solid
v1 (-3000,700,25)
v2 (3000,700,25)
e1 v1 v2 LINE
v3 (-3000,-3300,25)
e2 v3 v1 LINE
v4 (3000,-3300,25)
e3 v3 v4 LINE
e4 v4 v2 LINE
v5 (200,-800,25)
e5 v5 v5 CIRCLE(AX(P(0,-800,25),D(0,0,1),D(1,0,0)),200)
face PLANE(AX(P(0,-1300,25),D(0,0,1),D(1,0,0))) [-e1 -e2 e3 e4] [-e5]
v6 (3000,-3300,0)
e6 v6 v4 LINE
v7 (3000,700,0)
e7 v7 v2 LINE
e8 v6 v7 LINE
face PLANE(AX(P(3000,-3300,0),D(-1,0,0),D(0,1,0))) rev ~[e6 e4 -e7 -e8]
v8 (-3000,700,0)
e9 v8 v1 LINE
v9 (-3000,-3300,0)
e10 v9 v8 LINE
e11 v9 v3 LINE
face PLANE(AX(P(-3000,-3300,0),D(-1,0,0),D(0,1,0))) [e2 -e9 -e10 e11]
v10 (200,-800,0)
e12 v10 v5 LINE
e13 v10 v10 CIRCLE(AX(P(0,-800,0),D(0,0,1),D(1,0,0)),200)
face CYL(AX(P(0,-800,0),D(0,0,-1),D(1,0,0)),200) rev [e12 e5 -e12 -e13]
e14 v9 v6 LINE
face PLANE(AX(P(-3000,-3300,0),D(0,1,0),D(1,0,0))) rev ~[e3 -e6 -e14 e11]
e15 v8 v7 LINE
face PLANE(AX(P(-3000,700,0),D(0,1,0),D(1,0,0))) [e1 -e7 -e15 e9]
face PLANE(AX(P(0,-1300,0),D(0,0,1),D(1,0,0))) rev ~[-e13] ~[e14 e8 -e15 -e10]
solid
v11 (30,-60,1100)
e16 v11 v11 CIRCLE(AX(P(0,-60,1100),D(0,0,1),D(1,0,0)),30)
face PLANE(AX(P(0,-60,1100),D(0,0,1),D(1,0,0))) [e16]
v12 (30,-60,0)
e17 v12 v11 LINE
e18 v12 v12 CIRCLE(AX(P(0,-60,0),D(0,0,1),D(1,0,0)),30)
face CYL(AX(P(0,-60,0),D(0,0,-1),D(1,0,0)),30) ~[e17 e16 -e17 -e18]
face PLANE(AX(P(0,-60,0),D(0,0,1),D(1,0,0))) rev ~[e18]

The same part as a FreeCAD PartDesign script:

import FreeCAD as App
import Part
import Sketcher


def add_polygon(sketch, points):
    """Adds a closed chain of lines whose ends are joined by coincident constraints."""
    first, n = sketch.GeometryCount, len(points)
    for a, b in zip(points, points[1:] + points[:1]):
        sketch.addGeometry(Part.LineSegment(App.Vector(*a, 0), App.Vector(*b, 0)), False)
    for i in range(n):
        sketch.addConstraint(Sketcher.Constraint("Coincident", first + i, 2, first + (i + 1) % n, 1))

doc = App.newDocument("Part")
body = doc.addObject("PartDesign::Body", "Body")

# Sketch on XY plane
sketch1 = body.newObject("Sketcher::SketchObject", "Sketch")
sketch1.AttachmentSupport = (doc.getObject("XY_Plane"), [""])
sketch1.MapMode = "FlatFace"
add_polygon(sketch1, [(-3000, 700), (-3000, -3300), (3000, -3300), (3000, 700)])  # lines 0-3
sketch1.addGeometry(Part.Circle(App.Vector(0, -800, 0), App.Vector(0, 0, 1), 200), False)  # 4
sketch1.addConstraint([
    Sketcher.Constraint("Vertical", 0),
    Sketcher.Constraint("Horizontal", 1),
    Sketcher.Constraint("Vertical", 2),
    Sketcher.Constraint("Horizontal", 3),
    Sketcher.Constraint("PointOnObject", 4, 3, -2),
    Sketcher.Constraint("Diameter", 4, 400.0),
    Sketcher.Constraint("DistanceX", 1, 1, 1, 2, 6000.0),
    Sketcher.Constraint("DistanceY", 0, 2, 0, 1, 4000.0),
    Sketcher.Constraint("DistanceY", 4, 3, -1, 1, 800.0),
    Sketcher.Constraint("DistanceX", 0, 2, -1, 1, 3000.0),
    Sketcher.Constraint("DistanceY", 0, 2, -1, 1, 3300.0),
])
pad1 = body.newObject("PartDesign::Pad", "Pad")
pad1.Profile = sketch1
pad1.Length = 25
body2 = doc.addObject("PartDesign::Body", "Body001")

# Sketch on XY plane
sketch2 = body2.newObject("Sketcher::SketchObject", "Sketch001")
sketch2.AttachmentSupport = (doc.getObject("XY_Plane001"), [""])
sketch2.MapMode = "FlatFace"
sketch2.addGeometry(Part.Circle(App.Vector(0, -60, 0), App.Vector(0, 0, 1), 30), False)
sketch2.addConstraint([
    Sketcher.Constraint("PointOnObject", 0, 3, -2),
    Sketcher.Constraint("Diameter", 0, 60.0),
    Sketcher.Constraint("DistanceY", 0, 3, -1, 1, 60.0),
])
pad2 = body2.newObject("PartDesign::Pad", "Pad001")
pad2.Profile = sketch2
pad2.Length = 1100

doc.recompute()
